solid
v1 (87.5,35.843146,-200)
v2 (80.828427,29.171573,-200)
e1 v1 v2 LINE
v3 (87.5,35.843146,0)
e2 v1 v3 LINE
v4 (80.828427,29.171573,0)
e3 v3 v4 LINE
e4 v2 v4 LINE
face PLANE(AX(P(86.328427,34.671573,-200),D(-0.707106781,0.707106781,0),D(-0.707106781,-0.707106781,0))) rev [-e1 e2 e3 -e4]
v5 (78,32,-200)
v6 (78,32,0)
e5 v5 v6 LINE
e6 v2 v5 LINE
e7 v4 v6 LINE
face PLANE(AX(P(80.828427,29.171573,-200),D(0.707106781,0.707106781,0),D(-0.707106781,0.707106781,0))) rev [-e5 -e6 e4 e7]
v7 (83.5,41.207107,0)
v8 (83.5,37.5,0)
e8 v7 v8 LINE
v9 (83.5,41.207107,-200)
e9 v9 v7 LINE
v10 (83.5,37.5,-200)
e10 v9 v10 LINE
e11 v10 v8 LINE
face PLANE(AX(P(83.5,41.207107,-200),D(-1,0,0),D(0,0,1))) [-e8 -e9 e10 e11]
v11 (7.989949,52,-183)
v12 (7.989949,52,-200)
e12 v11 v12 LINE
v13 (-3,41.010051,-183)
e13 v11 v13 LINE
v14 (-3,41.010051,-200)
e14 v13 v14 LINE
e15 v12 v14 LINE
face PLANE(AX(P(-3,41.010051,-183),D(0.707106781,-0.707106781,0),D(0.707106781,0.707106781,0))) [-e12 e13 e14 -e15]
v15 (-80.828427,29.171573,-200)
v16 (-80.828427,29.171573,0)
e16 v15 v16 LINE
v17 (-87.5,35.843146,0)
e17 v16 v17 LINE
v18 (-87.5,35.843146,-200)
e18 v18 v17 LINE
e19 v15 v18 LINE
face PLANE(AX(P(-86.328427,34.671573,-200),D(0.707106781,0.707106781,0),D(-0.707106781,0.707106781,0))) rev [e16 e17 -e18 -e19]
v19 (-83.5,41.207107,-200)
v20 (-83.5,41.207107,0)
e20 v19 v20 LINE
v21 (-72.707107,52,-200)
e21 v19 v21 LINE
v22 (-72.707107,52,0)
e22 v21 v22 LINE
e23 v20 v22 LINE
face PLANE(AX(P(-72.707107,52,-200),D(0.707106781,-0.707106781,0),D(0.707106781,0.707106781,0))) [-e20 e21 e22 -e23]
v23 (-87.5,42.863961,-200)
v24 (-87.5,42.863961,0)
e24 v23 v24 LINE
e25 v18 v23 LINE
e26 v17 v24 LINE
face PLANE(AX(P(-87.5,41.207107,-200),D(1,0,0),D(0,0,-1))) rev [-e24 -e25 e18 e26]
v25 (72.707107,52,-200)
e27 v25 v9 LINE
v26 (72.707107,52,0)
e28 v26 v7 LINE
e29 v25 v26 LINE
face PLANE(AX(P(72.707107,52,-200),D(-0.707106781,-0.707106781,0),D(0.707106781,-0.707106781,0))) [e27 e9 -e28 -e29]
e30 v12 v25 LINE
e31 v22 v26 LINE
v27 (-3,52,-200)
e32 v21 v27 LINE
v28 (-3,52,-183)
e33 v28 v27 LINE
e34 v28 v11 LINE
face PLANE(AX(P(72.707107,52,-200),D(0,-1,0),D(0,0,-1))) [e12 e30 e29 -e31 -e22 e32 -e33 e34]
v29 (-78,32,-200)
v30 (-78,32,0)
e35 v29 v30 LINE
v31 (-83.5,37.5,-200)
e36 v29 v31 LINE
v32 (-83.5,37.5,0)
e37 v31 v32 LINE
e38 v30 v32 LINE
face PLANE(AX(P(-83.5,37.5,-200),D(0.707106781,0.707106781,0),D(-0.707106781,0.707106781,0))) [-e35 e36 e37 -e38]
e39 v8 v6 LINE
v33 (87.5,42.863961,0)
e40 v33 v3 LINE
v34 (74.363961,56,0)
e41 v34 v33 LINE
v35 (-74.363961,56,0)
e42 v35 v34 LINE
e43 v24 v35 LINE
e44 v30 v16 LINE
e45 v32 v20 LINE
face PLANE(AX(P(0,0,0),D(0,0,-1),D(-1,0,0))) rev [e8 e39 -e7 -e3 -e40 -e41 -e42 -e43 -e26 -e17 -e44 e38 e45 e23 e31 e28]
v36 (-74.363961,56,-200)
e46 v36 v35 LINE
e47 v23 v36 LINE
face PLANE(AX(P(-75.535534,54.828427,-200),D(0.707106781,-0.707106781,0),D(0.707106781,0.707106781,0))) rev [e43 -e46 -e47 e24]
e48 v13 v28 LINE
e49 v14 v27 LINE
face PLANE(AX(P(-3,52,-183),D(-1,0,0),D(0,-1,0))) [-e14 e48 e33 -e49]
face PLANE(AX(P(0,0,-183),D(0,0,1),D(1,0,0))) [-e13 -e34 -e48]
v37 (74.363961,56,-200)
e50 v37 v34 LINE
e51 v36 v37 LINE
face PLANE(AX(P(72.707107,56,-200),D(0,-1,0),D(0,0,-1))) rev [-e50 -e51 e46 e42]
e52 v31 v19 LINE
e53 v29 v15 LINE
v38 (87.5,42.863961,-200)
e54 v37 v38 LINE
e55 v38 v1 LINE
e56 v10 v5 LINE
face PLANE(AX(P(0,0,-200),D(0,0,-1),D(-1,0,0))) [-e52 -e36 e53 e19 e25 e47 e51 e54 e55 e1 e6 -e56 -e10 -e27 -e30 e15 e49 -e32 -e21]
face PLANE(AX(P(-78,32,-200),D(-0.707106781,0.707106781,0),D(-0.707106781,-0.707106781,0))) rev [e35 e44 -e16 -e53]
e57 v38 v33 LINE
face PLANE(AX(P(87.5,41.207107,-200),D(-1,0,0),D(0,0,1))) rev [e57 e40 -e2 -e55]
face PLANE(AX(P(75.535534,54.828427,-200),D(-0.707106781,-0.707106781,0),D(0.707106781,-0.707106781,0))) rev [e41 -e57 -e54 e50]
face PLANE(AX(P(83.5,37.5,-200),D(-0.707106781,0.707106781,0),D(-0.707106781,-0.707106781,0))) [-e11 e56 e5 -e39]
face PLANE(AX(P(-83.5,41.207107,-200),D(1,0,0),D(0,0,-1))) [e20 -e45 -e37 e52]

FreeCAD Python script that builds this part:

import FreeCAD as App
import Part
import Sketcher
from FreeCAD import Vector


def add_polygon(sketch, points):
    """Adds a closed chain of lines whose ends are joined by coincident constraints."""
    first, n = sketch.GeometryCount, len(points)
    for a, b in zip(points, points[1:] + points[:1]):
        sketch.addGeometry(Part.LineSegment(App.Vector(*a, 0), App.Vector(*b, 0)), False)
    for i in range(n):
        sketch.addConstraint(Sketcher.Constraint("Coincident", first + i, 2, first + (i + 1) % n, 1))

doc = App.newDocument("Part")
body = doc.addObject("PartDesign::Body", "Body")

# Sketch on XY plane
sketch1 = body.newObject("Sketcher::SketchObject", "Sketch")
sketch1.AttachmentSupport = (doc.getObject("XY_Plane"), [""])
sketch1.MapMode = "FlatFace"
add_polygon(sketch1, [(83.5, 37.5), (78, 32), (80.828427, 29.171573), (87.5, 35.843146), (87.5, 42.863961), (74.363961, 56), (-74.363961, 56), (-87.5, 42.863961), (-87.5, 35.843146), (-80.828427, 29.171573), (-78, 32), (-83.5, 37.5), (-83.5, 41.207107), (-72.707107, 52), (72.707107, 52), (83.5, 41.207107)])  # lines 0-15
sketch1.addConstraint(Sketcher.Constraint("Vertical", 3))
sketch1.addConstraint(Sketcher.Constraint("Horizontal", 5))
sketch1.addConstraint(Sketcher.Constraint("Vertical", 7))
sketch1.addConstraint(Sketcher.Constraint("Vertical", 11))
sketch1.addConstraint(Sketcher.Constraint("Horizontal", 13))
sketch1.addConstraint(Sketcher.Constraint("Vertical", 15))
sketch1.addConstraint(Sketcher.Constraint("Symmetric", 3, 2, 6, 2, -2))
sketch1.addConstraint(Sketcher.Constraint("Symmetric", 1, 2, 8, 2, -2))
sketch1.addConstraint(Sketcher.Constraint("Symmetric", 0, 2, 9, 2, -2))
sketch1.addConstraint(Sketcher.Constraint("Symmetric", 11, 2, 14, 2, -2))
sketch1.addConstraint(Sketcher.Constraint("Perpendicular", 0, 1))
sketch1.addConstraint(Sketcher.Constraint("Perpendicular", 1, 2))
sketch1.addConstraint(Sketcher.Constraint("Perpendicular", 2, 4))
sketch1.addConstraint(Sketcher.Constraint("Perpendicular", 4, 6))
sketch1.addConstraint(Sketcher.Constraint("Perpendicular", 6, 8))
sketch1.addConstraint(Sketcher.Constraint("Perpendicular", 8, 9))
sketch1.addConstraint(Sketcher.Constraint("Perpendicular", 9, 10))
sketch1.addConstraint(Sketcher.Constraint("Perpendicular", 10, 12))
sketch1.addConstraint(Sketcher.Constraint("Perpendicular", 12, 14))
sketch1.addConstraint(Sketcher.Constraint("Distance", 1, 4.0))
sketch1.addConstraint(Sketcher.Constraint("DistanceX", -1, 1, 0, 2, 78.0))
sketch1.addConstraint(Sketcher.Constraint("DistanceY", -1, 1, 0, 2, 32.0))
sketch1.addConstraint(Sketcher.Constraint("DistanceY", -1, 1, 4, 2, 56.0))
sketch1.addConstraint(Sketcher.Constraint("DistanceY", -1, 1, 12, 2, 52.0))
sketch1.addConstraint(Sketcher.Constraint("DistanceX", 6, 2, 3, 2, 175.0))
sketch1.addConstraint(Sketcher.Constraint("DistanceX", 7, 2, 10, 2, 4.0))
sketch1.addConstraint(Sketcher.Constraint("DistanceX", 5, 2, 5, 1, 148.727922))
sketch1.addConstraint(Sketcher.Constraint("DistanceX", 13, 1, 13, 2, 145.414214))
pad1 = body.newObject("PartDesign::Pad", "Pad")
pad1.Profile = sketch1
pad1.Length = 200
pad1.Reversed = True

# Sketch on XY plane
sketch2 = body.newObject("Sketcher::SketchObject", "Sketch001")
sketch2.AttachmentSupport = (doc.getObject("XY_Plane"), [""])
sketch2.MapMode = "FlatFace"
sketch2.AttachmentOffset = App.Placement(Vector(0, 0, -200), App.Rotation())
add_polygon(sketch2, [(-3, 52), (7.989949, 52), (-3, 41.010051)])  # lines 0-2
sketch2.addConstraint(Sketcher.Constraint("Horizontal", 0))
sketch2.addConstraint(Sketcher.Constraint("Vertical", 2))
sketch2.addConstraint(Sketcher.Constraint("Equal", 0, 2))
sketch2.addConstraint(Sketcher.Constraint("DistanceY", -1, 1, 0, 2, 52.0))
sketch2.addConstraint(Sketcher.Constraint("DistanceX", 1, 2, -1, 1, 3.0))
sketch2.addConstraint(Sketcher.Constraint("DistanceX", 0, 1, 0, 2, 10.989949))
pad2 = body.newObject("PartDesign::Pad", "Pad001")
pad2.Profile = sketch2
pad2.Length = 17

doc.recompute()
